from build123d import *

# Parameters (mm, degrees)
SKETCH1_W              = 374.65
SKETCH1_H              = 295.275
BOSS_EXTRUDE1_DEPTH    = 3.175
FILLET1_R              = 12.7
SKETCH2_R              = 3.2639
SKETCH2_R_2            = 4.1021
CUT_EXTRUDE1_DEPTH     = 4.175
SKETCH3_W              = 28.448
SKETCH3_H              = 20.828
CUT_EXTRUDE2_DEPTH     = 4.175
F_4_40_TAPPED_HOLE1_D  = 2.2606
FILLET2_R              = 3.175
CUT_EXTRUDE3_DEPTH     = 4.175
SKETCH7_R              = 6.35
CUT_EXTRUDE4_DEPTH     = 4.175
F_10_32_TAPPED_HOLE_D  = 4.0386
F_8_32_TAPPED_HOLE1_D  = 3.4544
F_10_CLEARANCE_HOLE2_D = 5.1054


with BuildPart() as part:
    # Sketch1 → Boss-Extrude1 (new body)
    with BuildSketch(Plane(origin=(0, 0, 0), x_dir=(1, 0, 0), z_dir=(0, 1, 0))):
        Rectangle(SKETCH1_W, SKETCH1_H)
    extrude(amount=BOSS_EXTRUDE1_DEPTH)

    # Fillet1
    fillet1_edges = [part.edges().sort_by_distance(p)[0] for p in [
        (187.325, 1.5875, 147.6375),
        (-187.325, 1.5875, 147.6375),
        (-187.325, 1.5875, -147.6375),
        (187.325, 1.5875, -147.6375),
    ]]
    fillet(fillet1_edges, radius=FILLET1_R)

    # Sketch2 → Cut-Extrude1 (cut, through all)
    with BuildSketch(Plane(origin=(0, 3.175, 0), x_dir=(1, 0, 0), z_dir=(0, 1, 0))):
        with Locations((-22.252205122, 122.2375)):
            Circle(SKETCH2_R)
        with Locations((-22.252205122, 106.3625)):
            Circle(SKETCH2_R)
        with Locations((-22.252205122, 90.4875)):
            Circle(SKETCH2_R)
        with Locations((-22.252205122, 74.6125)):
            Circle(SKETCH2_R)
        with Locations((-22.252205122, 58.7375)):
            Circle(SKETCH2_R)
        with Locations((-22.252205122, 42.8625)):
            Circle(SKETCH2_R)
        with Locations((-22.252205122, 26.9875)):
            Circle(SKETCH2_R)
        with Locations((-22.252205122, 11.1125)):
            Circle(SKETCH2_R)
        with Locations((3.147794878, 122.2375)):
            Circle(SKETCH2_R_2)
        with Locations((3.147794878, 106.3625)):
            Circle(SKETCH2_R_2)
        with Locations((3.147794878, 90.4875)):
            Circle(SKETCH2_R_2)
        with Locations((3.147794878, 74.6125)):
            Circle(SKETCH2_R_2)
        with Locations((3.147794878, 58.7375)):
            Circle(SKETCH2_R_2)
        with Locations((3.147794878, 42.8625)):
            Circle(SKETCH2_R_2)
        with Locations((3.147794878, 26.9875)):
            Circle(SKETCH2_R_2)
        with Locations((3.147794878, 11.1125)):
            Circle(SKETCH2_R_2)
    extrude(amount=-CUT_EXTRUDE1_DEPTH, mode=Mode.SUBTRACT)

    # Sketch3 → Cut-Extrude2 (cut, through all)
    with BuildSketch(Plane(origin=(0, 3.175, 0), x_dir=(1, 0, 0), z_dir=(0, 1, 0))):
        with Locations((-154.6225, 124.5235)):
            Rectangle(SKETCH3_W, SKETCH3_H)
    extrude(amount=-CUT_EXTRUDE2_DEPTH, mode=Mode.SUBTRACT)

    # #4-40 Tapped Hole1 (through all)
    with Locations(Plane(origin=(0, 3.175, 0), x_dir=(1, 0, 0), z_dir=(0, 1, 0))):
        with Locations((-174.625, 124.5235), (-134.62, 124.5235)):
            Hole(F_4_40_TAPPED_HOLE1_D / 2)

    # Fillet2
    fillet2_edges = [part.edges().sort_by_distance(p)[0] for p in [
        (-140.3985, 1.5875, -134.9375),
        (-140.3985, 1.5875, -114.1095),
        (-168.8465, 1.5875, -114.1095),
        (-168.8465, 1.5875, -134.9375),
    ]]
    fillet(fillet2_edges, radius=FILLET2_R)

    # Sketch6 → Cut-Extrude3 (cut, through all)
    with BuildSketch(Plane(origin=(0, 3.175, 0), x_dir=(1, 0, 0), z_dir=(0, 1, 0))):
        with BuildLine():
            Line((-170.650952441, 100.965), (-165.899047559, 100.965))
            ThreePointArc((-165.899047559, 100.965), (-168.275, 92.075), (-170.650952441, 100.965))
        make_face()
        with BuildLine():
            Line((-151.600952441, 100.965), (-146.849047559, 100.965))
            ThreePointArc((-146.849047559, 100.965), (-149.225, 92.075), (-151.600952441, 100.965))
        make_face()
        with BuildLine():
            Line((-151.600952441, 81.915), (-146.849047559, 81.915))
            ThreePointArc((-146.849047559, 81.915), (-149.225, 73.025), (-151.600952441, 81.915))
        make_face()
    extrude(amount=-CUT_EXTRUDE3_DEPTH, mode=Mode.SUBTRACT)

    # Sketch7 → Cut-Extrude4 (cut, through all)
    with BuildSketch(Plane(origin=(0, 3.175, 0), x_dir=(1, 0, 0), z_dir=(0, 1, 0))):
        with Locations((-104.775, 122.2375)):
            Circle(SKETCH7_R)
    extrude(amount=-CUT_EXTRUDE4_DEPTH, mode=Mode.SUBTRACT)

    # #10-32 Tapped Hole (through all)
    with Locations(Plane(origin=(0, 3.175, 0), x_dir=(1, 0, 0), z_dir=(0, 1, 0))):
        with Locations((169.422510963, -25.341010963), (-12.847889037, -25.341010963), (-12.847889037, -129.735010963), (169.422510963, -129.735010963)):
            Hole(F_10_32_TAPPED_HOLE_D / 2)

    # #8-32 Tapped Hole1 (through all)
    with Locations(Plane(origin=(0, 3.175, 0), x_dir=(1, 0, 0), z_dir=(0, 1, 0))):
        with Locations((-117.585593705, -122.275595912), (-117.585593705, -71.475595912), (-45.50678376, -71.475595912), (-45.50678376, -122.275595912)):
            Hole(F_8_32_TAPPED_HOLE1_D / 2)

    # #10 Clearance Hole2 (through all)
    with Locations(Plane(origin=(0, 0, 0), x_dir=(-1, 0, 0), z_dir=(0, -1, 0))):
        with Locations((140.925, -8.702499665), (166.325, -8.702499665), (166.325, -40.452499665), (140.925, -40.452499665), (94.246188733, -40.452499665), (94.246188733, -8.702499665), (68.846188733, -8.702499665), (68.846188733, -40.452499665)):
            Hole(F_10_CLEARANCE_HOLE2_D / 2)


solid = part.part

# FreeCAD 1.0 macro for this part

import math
import FreeCAD as App
import Part
import Sketcher
Q = App.Units.Quantity


def edges_at(feature, points):
    """Names of the edges that pass closest to the given points."""
    edges = feature.Shape.Edges
    near = lambda p: min(range(len(edges)), key=lambda i: edges[i].distToShape(Part.Vertex(*p))[0])
    return sorted({f"Edge{near(p) + 1}" for p in points})


def add_polygon(sketch, points):
    """Adds a closed chain of lines whose ends are joined by coincident constraints."""
    first, n = sketch.GeometryCount, len(points)
    for a, b in zip(points, points[1:] + points[:1]):
        sketch.addGeometry(Part.LineSegment(App.Vector(*a, 0), App.Vector(*b, 0)), False)
    for i in range(n):
        sketch.addConstraint(Sketcher.Constraint("Coincident", first + i, 2, first + (i + 1) % n, 1))

doc = App.newDocument("Part")
body = doc.addObject("PartDesign::Body", "Body")

# Sketch on XZ plane
sketch1 = body.newObject("Sketcher::SketchObject", "Sketch")
sketch1.AttachmentSupport = (doc.getObject("XZ_Plane"), [""])
sketch1.MapMode = "FlatFace"
add_polygon(sketch1, [(-187, -148), (-187, 148), (187, 148), (187, -148)])  # lines 0-3
sketch1.addConstraint(Sketcher.Constraint("Vertical", 0))
sketch1.addConstraint(Sketcher.Constraint("Horizontal", 1))
sketch1.addConstraint(Sketcher.Constraint("Vertical", 2))
sketch1.addConstraint(Sketcher.Constraint("Horizontal", 3))
sketch1.addConstraint(Sketcher.Constraint("Symmetric", 0, 2, 2, 2, -1, 1))
sketch1.addConstraint(Sketcher.Constraint("DistanceX", 1, 1, 1, 2, Q("14.75 in")))
sketch1.addConstraint(Sketcher.Constraint("DistanceY", 0, 1, 0, 2, Q("11.625 in")))
pad1 = body.newObject("PartDesign::Pad", "Pad")
pad1.Profile = sketch1
pad1.Length = Q("0.125 in")
pad1.Reversed = True
doc.recompute()

fillet = body.newObject("PartDesign::Fillet", "Fillet")
fillet.Base = (pad1, edges_at(pad1, [
    (187.325, 1.587, 147.637),
    (-187.325, 1.587, 147.637),
    (-187.325, 1.587, -147.637),
    (187.325, 1.587, -147.637),
]))
fillet.Radius = Q("0.5 in")

# Sketch on XZ plane
sketch2 = body.newObject("Sketcher::SketchObject", "Sketch001")
sketch2.AttachmentSupport = (doc.getObject("XZ_Plane"), [""])
sketch2.MapMode = "FlatFace"
sketch2.AttachmentOffset = App.Placement(App.Vector(0, 0, -0.125 * 25.4), App.Rotation())
sketch2.addGeometry(Part.Circle(App.Vector(-22.3, -122.2, 0), App.Vector(0, 0, 1), 3.3), False)
sketch2.addGeometry(Part.Circle(App.Vector(-22.3, -106.4, 0), App.Vector(0, 0, 1), 3.3), False)
sketch2.addGeometry(Part.Circle(App.Vector(-22.3, -90.5, 0), App.Vector(0, 0, 1), 3.3), False)
sketch2.addGeometry(Part.Circle(App.Vector(-22.3, -74.6, 0), App.Vector(0, 0, 1), 3.3), False)
sketch2.addGeometry(Part.Circle(App.Vector(-22.3, -58.7, 0), App.Vector(0, 0, 1), 3.3), False)
sketch2.addGeometry(Part.Circle(App.Vector(-22.3, -42.9, 0), App.Vector(0, 0, 1), 3.3), False)
sketch2.addGeometry(Part.Circle(App.Vector(-22.3, -27, 0), App.Vector(0, 0, 1), 3.3), False)
sketch2.addGeometry(Part.Circle(App.Vector(-22.3, -11.1, 0), App.Vector(0, 0, 1), 3.3), False)
sketch2.addGeometry(Part.Circle(App.Vector(3.1, -122.2, 0), App.Vector(0, 0, 1), 4.1), False)
sketch2.addGeometry(Part.Circle(App.Vector(3.1, -106.4, 0), App.Vector(0, 0, 1), 4.1), False)
sketch2.addGeometry(Part.Circle(App.Vector(3.1, -90.5, 0), App.Vector(0, 0, 1), 4.1), False)
sketch2.addGeometry(Part.Circle(App.Vector(3.1, -74.6, 0), App.Vector(0, 0, 1), 4.1), False)
sketch2.addGeometry(Part.Circle(App.Vector(3.1, -58.7, 0), App.Vector(0, 0, 1), 4.1), False)
sketch2.addGeometry(Part.Circle(App.Vector(3.1, -42.9, 0), App.Vector(0, 0, 1), 4.1), False)
sketch2.addGeometry(Part.Circle(App.Vector(3.1, -27, 0), App.Vector(0, 0, 1), 4.1), False)
sketch2.addGeometry(Part.Circle(App.Vector(3.1, -11.1, 0), App.Vector(0, 0, 1), 4.1), False)
sketch2.addConstraint(Sketcher.Constraint("Equal", 0, 1))
sketch2.addConstraint(Sketcher.Constraint("Equal", 1, 2))
sketch2.addConstraint(Sketcher.Constraint("Equal", 2, 3))
sketch2.addConstraint(Sketcher.Constraint("Equal", 3, 4))
sketch2.addConstraint(Sketcher.Constraint("Equal", 4, 5))
sketch2.addConstraint(Sketcher.Constraint("Equal", 5, 6))
sketch2.addConstraint(Sketcher.Constraint("Equal", 6, 7))
sketch2.addConstraint(Sketcher.Constraint("Equal", 8, 9))
sketch2.addConstraint(Sketcher.Constraint("Equal", 9, 10))
sketch2.addConstraint(Sketcher.Constraint("Equal", 10, 11))
sketch2.addConstraint(Sketcher.Constraint("Equal", 11, 12))
sketch2.addConstraint(Sketcher.Constraint("Equal", 12, 13))
sketch2.addConstraint(Sketcher.Constraint("Equal", 13, 14))
sketch2.addConstraint(Sketcher.Constraint("Equal", 14, 15))
sketch2.addConstraint(Sketcher.Constraint("Horizontal", 0, 3, 8, 3))
sketch2.addConstraint(Sketcher.Constraint("Horizontal", 1, 3, 9, 3))
sketch2.addConstraint(Sketcher.Constraint("Horizontal", 2, 3, 10, 3))
sketch2.addConstraint(Sketcher.Constraint("Horizontal", 3, 3, 11, 3))
sketch2.addConstraint(Sketcher.Constraint("Horizontal", 4, 3, 12, 3))
sketch2.addConstraint(Sketcher.Constraint("Horizontal", 5, 3, 13, 3))
sketch2.addConstraint(Sketcher.Constraint("Horizontal", 6, 3, 14, 3))
sketch2.addConstraint(Sketcher.Constraint("Horizontal", 7, 3, 15, 3))
sketch2.addConstraint(Sketcher.Constraint("Vertical", 0, 3, 1, 3))
sketch2.addConstraint(Sketcher.Constraint("Vertical", 1, 3, 2, 3))
sketch2.addConstraint(Sketcher.Constraint("Vertical", 2, 3, 3, 3))
sketch2.addConstraint(Sketcher.Constraint("Vertical", 3, 3, 4, 3))
sketch2.addConstraint(Sketcher.Constraint("Vertical", 4, 3, 5, 3))
sketch2.addConstraint(Sketcher.Constraint("Vertical", 5, 3, 6, 3))
sketch2.addConstraint(Sketcher.Constraint("Vertical", 6, 3, 7, 3))
sketch2.addConstraint(Sketcher.Constraint("Vertical", 8, 3, 9, 3))
sketch2.addConstraint(Sketcher.Constraint("Vertical", 9, 3, 10, 3))
sketch2.addConstraint(Sketcher.Constraint("Vertical", 10, 3, 11, 3))
sketch2.addConstraint(Sketcher.Constraint("Vertical", 11, 3, 12, 3))
sketch2.addConstraint(Sketcher.Constraint("Vertical", 12, 3, 13, 3))
sketch2.addConstraint(Sketcher.Constraint("Vertical", 13, 3, 14, 3))
sketch2.addConstraint(Sketcher.Constraint("Vertical", 14, 3, 15, 3))
sketch2.addConstraint(Sketcher.Constraint("Diameter", 0, Q("0.257 in")))
sketch2.addConstraint(Sketcher.Constraint("Diameter", 8, Q("0.323 in")))
sketch2.addConstraint(Sketcher.Constraint("DistanceX", 0, 3, 8, 3, Q("1 in")))
sketch2.addConstraint(Sketcher.Constraint("DistanceY", 0, 3, 4, 3, Q("2.5 in")))
sketch2.addConstraint(Sketcher.Constraint("DistanceY", 1, 3, 5, 3, Q("2.5 in")))
sketch2.addConstraint(Sketcher.Constraint("DistanceY", 2, 3, 6, 3, Q("2.5 in")))
sketch2.addConstraint(Sketcher.Constraint("DistanceY", 3, 3, 7, 3, Q("2.5 in")))
sketch2.addConstraint(Sketcher.Constraint("DistanceY", 0, 3, 2, 3, Q("1.25 in")))
sketch2.addConstraint(Sketcher.Constraint("DistanceY", 1, 3, 3, 3, Q("1.25 in")))
sketch2.addConstraint(Sketcher.Constraint("DistanceY", 0, 3, -1, 1, Q("4.8125 in")))
sketch2.addConstraint(Sketcher.Constraint("DistanceY", 1, 3, -1, 1, Q("4.1875 in")))
sketch2.addConstraint(Sketcher.Constraint("DistanceX", 0, 3, -1, 1, 22.252205))
pocket1 = body.newObject("PartDesign::Pocket", "Pocket")
pocket1.Profile = sketch2
pocket1.Type = "ThroughAll"
pocket1.Reversed = True

# Sketch on XZ plane
sketch3 = body.newObject("Sketcher::SketchObject", "Sketch002")
sketch3.AttachmentSupport = (doc.getObject("XZ_Plane"), [""])
sketch3.MapMode = "FlatFace"
sketch3.AttachmentOffset = App.Placement(App.Vector(0, 0, -0.125 * 25.4), App.Rotation())
add_polygon(sketch3, [(-169, -135), (-169, -114), (-140, -114), (-140, -135)])  # lines 0-3
sketch3.addConstraint(Sketcher.Constraint("Vertical", 0))
sketch3.addConstraint(Sketcher.Constraint("Horizontal", 1))
sketch3.addConstraint(Sketcher.Constraint("Vertical", 2))
sketch3.addConstraint(Sketcher.Constraint("Horizontal", 3))
sketch3.addConstraint(Sketcher.Constraint("DistanceX", 1, 1, 1, 2, Q("1.12 in")))
sketch3.addConstraint(Sketcher.Constraint("DistanceY", 0, 1, 0, 2, Q("0.82 in")))
sketch3.addConstraint(Sketcher.Constraint("DistanceY", 2, 2, -1, 1, Q("5.3125 in")))
sketch3.addConstraint(Sketcher.Constraint("DistanceX", 0, 2, -1, 1, Q("6.6475 in")))
pocket2 = body.newObject("PartDesign::Pocket", "Pocket001")
pocket2.Profile = sketch3
pocket2.Type = "ThroughAll"
pocket2.Reversed = True

# Sketch on XZ plane
sketch4 = body.newObject("Sketcher::SketchObject", "Sketch003")
sketch4.AttachmentSupport = (doc.getObject("XZ_Plane"), [""])
sketch4.MapMode = "FlatFace"
sketch4.AttachmentOffset = App.Placement(App.Vector(0, 0, -0.125 * 25.4), App.Rotation())
sketch4.addGeometry(Part.Circle(App.Vector(-174.6, -124.5, 0), App.Vector(0, 0, 1), 1.1), False)
sketch4.addGeometry(Part.Circle(App.Vector(-134.6, -124.5, 0), App.Vector(0, 0, 1), 1.1), False)
sketch4.addConstraint(Sketcher.Constraint("Equal", 0, 1))
sketch4.addConstraint(Sketcher.Constraint("Horizontal", 0, 3, 1, 3))
sketch4.addConstraint(Sketcher.Constraint("Diameter", 0, Q("0.089 in")))
sketch4.addConstraint(Sketcher.Constraint("DistanceX", 1, 3, -1, 1, Q("5.3 in")))
sketch4.addConstraint(Sketcher.Constraint("DistanceX", 0, 3, -1, 1, Q("6.875 in")))
sketch4.addConstraint(Sketcher.Constraint("DistanceY", 0, 3, -1, 1, Q("4.9025 in")))
doc.recompute()
hole = body.newObject("PartDesign::Hole", "Hole")
hole.Profile = sketch4
hole.ThreadType = "None"
hole.Diameter = Q("0.089 in")
hole.DepthType = "ThroughAll"
hole.Reversed = True
doc.recompute()

fillet2 = body.newObject("PartDesign::Fillet", "Fillet001")
fillet2.Base = (hole, edges_at(hole, [
    (-140.399, 1.587, -134.938),
    (-140.399, 1.587, -114.109),
    (-168.846, 1.587, -114.109),
    (-168.846, 1.587, -134.938),
]))
fillet2.Radius = Q("0.125 in")

# Sketch on XZ plane
sketch5 = body.newObject("Sketcher::SketchObject", "Sketch004")
sketch5.AttachmentSupport = (doc.getObject("XZ_Plane"), [""])
sketch5.MapMode = "FlatFace"
sketch5.AttachmentOffset = App.Placement(App.Vector(0, 0, -0.125 * 25.4), App.Rotation())
sketch5.addGeometry(Part.LineSegment(App.Vector(-165.9, -101, 0), App.Vector(-170.7, -101, 0)), False)
sketch5.addGeometry(Part.ArcOfCircle(Part.Circle(App.Vector(-168.3, -96.8, 0), App.Vector(0, 0, 1), 4.8), math.radians(-60), math.radians(240)), False)
sketch5.addGeometry(Part.LineSegment(App.Vector(-146.8, -101, 0), App.Vector(-151.6, -101, 0)), False)
sketch5.addGeometry(Part.ArcOfCircle(Part.Circle(App.Vector(-149.2, -96.8, 0), App.Vector(0, 0, 1), 4.8), math.radians(-60), math.radians(240)), False)
sketch5.addGeometry(Part.LineSegment(App.Vector(-146.8, -81.9, 0), App.Vector(-151.6, -81.9, 0)), False)
sketch5.addGeometry(Part.ArcOfCircle(Part.Circle(App.Vector(-149.2, -77.8, 0), App.Vector(0, 0, 1), 4.8), math.radians(-60), math.radians(240)), False)
sketch5.addConstraint(Sketcher.Constraint("Coincident", 0, 1, 1, 1))
sketch5.addConstraint(Sketcher.Constraint("Coincident", 1, 2, 0, 2))
sketch5.addConstraint(Sketcher.Constraint("Coincident", 2, 1, 3, 1))
sketch5.addConstraint(Sketcher.Constraint("Coincident", 3, 2, 2, 2))
sketch5.addConstraint(Sketcher.Constraint("Coincident", 4, 1, 5, 1))
sketch5.addConstraint(Sketcher.Constraint("Coincident", 5, 2, 4, 2))
sketch5.addConstraint(Sketcher.Constraint("Horizontal", 0))
sketch5.addConstraint(Sketcher.Constraint("Horizontal", 2))
sketch5.addConstraint(Sketcher.Constraint("Horizontal", 4))
sketch5.addConstraint(Sketcher.Constraint("Equal", 1, 3))
sketch5.addConstraint(Sketcher.Constraint("Equal", 3, 5))
sketch5.addConstraint(Sketcher.Constraint("Horizontal", 1, 3, 3, 3))
sketch5.addConstraint(Sketcher.Constraint("Horizontal", 1, 2, 2, 1))
sketch5.addConstraint(Sketcher.Constraint("Vertical", 3, 3, 5, 3))
sketch5.addConstraint(Sketcher.Constraint("Vertical", 2, 1, 4, 1))
sketch5.addConstraint(Sketcher.Constraint("Radius", 1, Q("0.1875 in")))
sketch5.addConstraint(Sketcher.Constraint("DistanceX", 1, 3, 3, 3, Q("0.75 in")))
sketch5.addConstraint(Sketcher.Constraint("DistanceY", 3, 3, 5, 3, Q("0.75 in")))
sketch5.addConstraint(Sketcher.Constraint("DistanceX", 1, 3, -1, 1, Q("6.625 in")))
sketch5.addConstraint(Sketcher.Constraint("DistanceY", 1, 3, -1, 1, Q("3.8125 in")))
sketch5.addConstraint(Sketcher.Constraint("DistanceY", 0, 1, -1, 1, Q("3.975 in")))
pocket3 = body.newObject("PartDesign::Pocket", "Pocket002")
pocket3.Profile = sketch5
pocket3.Type = "ThroughAll"
pocket3.Reversed = True

# Sketch on XZ plane
sketch6 = body.newObject("Sketcher::SketchObject", "Sketch005")
sketch6.AttachmentSupport = (doc.getObject("XZ_Plane"), [""])
sketch6.MapMode = "FlatFace"
sketch6.AttachmentOffset = App.Placement(App.Vector(0, 0, -0.125 * 25.4), App.Rotation())
sketch6.addGeometry(Part.Circle(App.Vector(-105, -122, 0), App.Vector(0, 0, 1), 6), False)
sketch6.addConstraint(Sketcher.Constraint("Diameter", 0, Q("0.5 in")))
sketch6.addConstraint(Sketcher.Constraint("DistanceX", 0, 3, -1, 1, Q("4.125 in")))
sketch6.addConstraint(Sketcher.Constraint("DistanceY", 0, 3, -1, 1, Q("4.8125 in")))
pocket4 = body.newObject("PartDesign::Pocket", "Pocket003")
pocket4.Profile = sketch6
pocket4.Type = "ThroughAll"
pocket4.Reversed = True

# Sketch on XZ plane
sketch7 = body.newObject("Sketcher::SketchObject", "Sketch006")
sketch7.AttachmentSupport = (doc.getObject("XZ_Plane"), [""])
sketch7.MapMode = "FlatFace"
sketch7.AttachmentOffset = App.Placement(App.Vector(0, 0, -0.125 * 25.4), App.Rotation())
sketch7.addGeometry(Part.Circle(App.Vector(169.4, 25.3, 0), App.Vector(0, 0, 1), 2), False)
sketch7.addGeometry(Part.Circle(App.Vector(-12.8, 25.3, 0), App.Vector(0, 0, 1), 2), False)
sketch7.addGeometry(Part.Circle(App.Vector(-12.8, 129.7, 0), App.Vector(0, 0, 1), 2), False)
sketch7.addGeometry(Part.Circle(App.Vector(169.4, 129.7, 0), App.Vector(0, 0, 1), 2), False)
sketch7.addConstraint(Sketcher.Constraint("Equal", 0, 1))
sketch7.addConstraint(Sketcher.Constraint("Equal", 1, 2))
sketch7.addConstraint(Sketcher.Constraint("Equal", 2, 3))
sketch7.addConstraint(Sketcher.Constraint("Horizontal", 0, 3, 1, 3))
sketch7.addConstraint(Sketcher.Constraint("Horizontal", 2, 3, 3, 3))
sketch7.addConstraint(Sketcher.Constraint("Vertical", 1, 3, 2, 3))
sketch7.addConstraint(Sketcher.Constraint("Vertical", 0, 3, 3, 3))
sketch7.addConstraint(Sketcher.Constraint("Diameter", 0, Q("0.159 in")))
sketch7.addConstraint(Sketcher.Constraint("DistanceY", 1, 3, 2, 3, Q("4.11 in")))
sketch7.addConstraint(Sketcher.Constraint("DistanceX", 1, 3, 0, 3, Q("7.176 in")))
sketch7.addConstraint(Sketcher.Constraint("DistanceX", -1, 1, 0, 3, 169.422511))
sketch7.addConstraint(Sketcher.Constraint("DistanceY", -1, 1, 0, 3, 25.341011))
doc.recompute()
hole2 = body.newObject("PartDesign::Hole", "Hole001")
hole2.Profile = sketch7
hole2.ThreadType = "None"
hole2.Diameter = Q("0.159 in")
hole2.DepthType = "ThroughAll"
hole2.Reversed = True

# Sketch on XZ plane
sketch8 = body.newObject("Sketcher::SketchObject", "Sketch007")
sketch8.AttachmentSupport = (doc.getObject("XZ_Plane"), [""])
sketch8.MapMode = "FlatFace"
sketch8.AttachmentOffset = App.Placement(App.Vector(0, 0, -0.125 * 25.4), App.Rotation())
sketch8.addGeometry(Part.Circle(App.Vector(-117.6, 122.3, 0), App.Vector(0, 0, 1), 1.7), False)
sketch8.addGeometry(Part.Circle(App.Vector(-117.6, 71.5, 0), App.Vector(0, 0, 1), 1.7), False)
sketch8.addGeometry(Part.Circle(App.Vector(-45.5, 71.5, 0), App.Vector(0, 0, 1), 1.7), False)
sketch8.addGeometry(Part.Circle(App.Vector(-45.5, 122.3, 0), App.Vector(0, 0, 1), 1.7), False)
sketch8.addConstraint(Sketcher.Constraint("Equal", 0, 1))
sketch8.addConstraint(Sketcher.Constraint("Equal", 1, 2))
sketch8.addConstraint(Sketcher.Constraint("Equal", 2, 3))
sketch8.addConstraint(Sketcher.Constraint("Horizontal", 1, 3, 2, 3))
sketch8.addConstraint(Sketcher.Constraint("Horizontal", 0, 3, 3, 3))
sketch8.addConstraint(Sketcher.Constraint("Vertical", 0, 3, 1, 3))
sketch8.addConstraint(Sketcher.Constraint("Vertical", 2, 3, 3, 3))
sketch8.addConstraint(Sketcher.Constraint("Diameter", 0, Q("0.136 in")))
sketch8.addConstraint(Sketcher.Constraint("DistanceY", 1, 3, 0, 3, Q("2 in")))
sketch8.addConstraint(Sketcher.Constraint("DistanceY", -1, 1, 0, 3, Q("4.8139998 in")))
sketch8.addConstraint(Sketcher.Constraint("DistanceX", 1, 3, 2, 3, 72.07881))
sketch8.addConstraint(Sketcher.Constraint("DistanceX", 0, 3, -1, 1, 117.585594))
doc.recompute()
hole3 = body.newObject("PartDesign::Hole", "Hole002")
hole3.Profile = sketch8
hole3.ThreadType = "None"
hole3.Diameter = Q("0.136 in")
hole3.DepthType = "ThroughAll"
hole3.Reversed = True

# Sketch on XZ plane
sketch9 = body.newObject("Sketcher::SketchObject", "Sketch008")
sketch9.AttachmentSupport = (doc.getObject("XZ_Plane"), [""])
sketch9.MapMode = "FlatFace"
sketch9.addGeometry(Part.Circle(App.Vector(-140.9, 8.7, 0), App.Vector(0, 0, 1), 2.6), False)
sketch9.addGeometry(Part.Circle(App.Vector(-166.3, 8.7, 0), App.Vector(0, 0, 1), 2.6), False)
sketch9.addGeometry(Part.Circle(App.Vector(-166.3, 40.5, 0), App.Vector(0, 0, 1), 2.6), False)
sketch9.addGeometry(Part.Circle(App.Vector(-140.9, 40.5, 0), App.Vector(0, 0, 1), 2.6), False)
sketch9.addGeometry(Part.Circle(App.Vector(-94.2, 40.5, 0), App.Vector(0, 0, 1), 2.6), False)
sketch9.addGeometry(Part.Circle(App.Vector(-94.2, 8.7, 0), App.Vector(0, 0, 1), 2.6), False)
sketch9.addGeometry(Part.Circle(App.Vector(-68.8, 8.7, 0), App.Vector(0, 0, 1), 2.6), False)
sketch9.addGeometry(Part.Circle(App.Vector(-68.8, 40.5, 0), App.Vector(0, 0, 1), 2.6), False)
sketch9.addConstraint(Sketcher.Constraint("Equal", 0, 1))
sketch9.addConstraint(Sketcher.Constraint("Equal", 1, 2))
sketch9.addConstraint(Sketcher.Constraint("Equal", 2, 3))
sketch9.addConstraint(Sketcher.Constraint("Equal", 3, 4))
sketch9.addConstraint(Sketcher.Constraint("Equal", 4, 5))
sketch9.addConstraint(Sketcher.Constraint("Equal", 5, 6))
sketch9.addConstraint(Sketcher.Constraint("Equal", 6, 7))
sketch9.addConstraint(Sketcher.Constraint("Horizontal", 0, 3, 1, 3))
sketch9.addConstraint(Sketcher.Constraint("Horizontal", 2, 3, 3, 3))
sketch9.addConstraint(Sketcher.Constraint("Horizontal", 3, 3, 4, 3))
sketch9.addConstraint(Sketcher.Constraint("Horizontal", 1, 3, 5, 3))
sketch9.addConstraint(Sketcher.Constraint("Horizontal", 5, 3, 6, 3))
sketch9.addConstraint(Sketcher.Constraint("Horizontal", 4, 3, 7, 3))
sketch9.addConstraint(Sketcher.Constraint("Vertical", 1, 3, 2, 3))
sketch9.addConstraint(Sketcher.Constraint("Vertical", 0, 3, 3, 3))
sketch9.addConstraint(Sketcher.Constraint("Vertical", 4, 3, 5, 3))
sketch9.addConstraint(Sketcher.Constraint("Vertical", 6, 3, 7, 3))
sketch9.addConstraint(Sketcher.Constraint("Diameter", 0, Q("0.201 in")))
sketch9.addConstraint(Sketcher.Constraint("DistanceX", 1, 3, 0, 3, Q("1 in")))
sketch9.addConstraint(Sketcher.Constraint("DistanceX", 5, 3, 6, 3, Q("1 in")))
sketch9.addConstraint(Sketcher.Constraint("DistanceY", 1, 3, 2, 3, Q("1.25 in")))
sketch9.addConstraint(Sketcher.Constraint("DistanceX", 0, 3, -1, 1, 140.925))
sketch9.addConstraint(Sketcher.Constraint("DistanceY", -1, 1, 0, 3, 8.7025))
sketch9.addConstraint(Sketcher.Constraint("DistanceX", 4, 3, -1, 1, 94.246189))
doc.recompute()
hole4 = body.newObject("PartDesign::Hole", "Hole003")
hole4.Profile = sketch9
hole4.ThreadType = "None"
hole4.Diameter = Q("0.201 in")
hole4.DepthType = "ThroughAll"

doc.recompute()
